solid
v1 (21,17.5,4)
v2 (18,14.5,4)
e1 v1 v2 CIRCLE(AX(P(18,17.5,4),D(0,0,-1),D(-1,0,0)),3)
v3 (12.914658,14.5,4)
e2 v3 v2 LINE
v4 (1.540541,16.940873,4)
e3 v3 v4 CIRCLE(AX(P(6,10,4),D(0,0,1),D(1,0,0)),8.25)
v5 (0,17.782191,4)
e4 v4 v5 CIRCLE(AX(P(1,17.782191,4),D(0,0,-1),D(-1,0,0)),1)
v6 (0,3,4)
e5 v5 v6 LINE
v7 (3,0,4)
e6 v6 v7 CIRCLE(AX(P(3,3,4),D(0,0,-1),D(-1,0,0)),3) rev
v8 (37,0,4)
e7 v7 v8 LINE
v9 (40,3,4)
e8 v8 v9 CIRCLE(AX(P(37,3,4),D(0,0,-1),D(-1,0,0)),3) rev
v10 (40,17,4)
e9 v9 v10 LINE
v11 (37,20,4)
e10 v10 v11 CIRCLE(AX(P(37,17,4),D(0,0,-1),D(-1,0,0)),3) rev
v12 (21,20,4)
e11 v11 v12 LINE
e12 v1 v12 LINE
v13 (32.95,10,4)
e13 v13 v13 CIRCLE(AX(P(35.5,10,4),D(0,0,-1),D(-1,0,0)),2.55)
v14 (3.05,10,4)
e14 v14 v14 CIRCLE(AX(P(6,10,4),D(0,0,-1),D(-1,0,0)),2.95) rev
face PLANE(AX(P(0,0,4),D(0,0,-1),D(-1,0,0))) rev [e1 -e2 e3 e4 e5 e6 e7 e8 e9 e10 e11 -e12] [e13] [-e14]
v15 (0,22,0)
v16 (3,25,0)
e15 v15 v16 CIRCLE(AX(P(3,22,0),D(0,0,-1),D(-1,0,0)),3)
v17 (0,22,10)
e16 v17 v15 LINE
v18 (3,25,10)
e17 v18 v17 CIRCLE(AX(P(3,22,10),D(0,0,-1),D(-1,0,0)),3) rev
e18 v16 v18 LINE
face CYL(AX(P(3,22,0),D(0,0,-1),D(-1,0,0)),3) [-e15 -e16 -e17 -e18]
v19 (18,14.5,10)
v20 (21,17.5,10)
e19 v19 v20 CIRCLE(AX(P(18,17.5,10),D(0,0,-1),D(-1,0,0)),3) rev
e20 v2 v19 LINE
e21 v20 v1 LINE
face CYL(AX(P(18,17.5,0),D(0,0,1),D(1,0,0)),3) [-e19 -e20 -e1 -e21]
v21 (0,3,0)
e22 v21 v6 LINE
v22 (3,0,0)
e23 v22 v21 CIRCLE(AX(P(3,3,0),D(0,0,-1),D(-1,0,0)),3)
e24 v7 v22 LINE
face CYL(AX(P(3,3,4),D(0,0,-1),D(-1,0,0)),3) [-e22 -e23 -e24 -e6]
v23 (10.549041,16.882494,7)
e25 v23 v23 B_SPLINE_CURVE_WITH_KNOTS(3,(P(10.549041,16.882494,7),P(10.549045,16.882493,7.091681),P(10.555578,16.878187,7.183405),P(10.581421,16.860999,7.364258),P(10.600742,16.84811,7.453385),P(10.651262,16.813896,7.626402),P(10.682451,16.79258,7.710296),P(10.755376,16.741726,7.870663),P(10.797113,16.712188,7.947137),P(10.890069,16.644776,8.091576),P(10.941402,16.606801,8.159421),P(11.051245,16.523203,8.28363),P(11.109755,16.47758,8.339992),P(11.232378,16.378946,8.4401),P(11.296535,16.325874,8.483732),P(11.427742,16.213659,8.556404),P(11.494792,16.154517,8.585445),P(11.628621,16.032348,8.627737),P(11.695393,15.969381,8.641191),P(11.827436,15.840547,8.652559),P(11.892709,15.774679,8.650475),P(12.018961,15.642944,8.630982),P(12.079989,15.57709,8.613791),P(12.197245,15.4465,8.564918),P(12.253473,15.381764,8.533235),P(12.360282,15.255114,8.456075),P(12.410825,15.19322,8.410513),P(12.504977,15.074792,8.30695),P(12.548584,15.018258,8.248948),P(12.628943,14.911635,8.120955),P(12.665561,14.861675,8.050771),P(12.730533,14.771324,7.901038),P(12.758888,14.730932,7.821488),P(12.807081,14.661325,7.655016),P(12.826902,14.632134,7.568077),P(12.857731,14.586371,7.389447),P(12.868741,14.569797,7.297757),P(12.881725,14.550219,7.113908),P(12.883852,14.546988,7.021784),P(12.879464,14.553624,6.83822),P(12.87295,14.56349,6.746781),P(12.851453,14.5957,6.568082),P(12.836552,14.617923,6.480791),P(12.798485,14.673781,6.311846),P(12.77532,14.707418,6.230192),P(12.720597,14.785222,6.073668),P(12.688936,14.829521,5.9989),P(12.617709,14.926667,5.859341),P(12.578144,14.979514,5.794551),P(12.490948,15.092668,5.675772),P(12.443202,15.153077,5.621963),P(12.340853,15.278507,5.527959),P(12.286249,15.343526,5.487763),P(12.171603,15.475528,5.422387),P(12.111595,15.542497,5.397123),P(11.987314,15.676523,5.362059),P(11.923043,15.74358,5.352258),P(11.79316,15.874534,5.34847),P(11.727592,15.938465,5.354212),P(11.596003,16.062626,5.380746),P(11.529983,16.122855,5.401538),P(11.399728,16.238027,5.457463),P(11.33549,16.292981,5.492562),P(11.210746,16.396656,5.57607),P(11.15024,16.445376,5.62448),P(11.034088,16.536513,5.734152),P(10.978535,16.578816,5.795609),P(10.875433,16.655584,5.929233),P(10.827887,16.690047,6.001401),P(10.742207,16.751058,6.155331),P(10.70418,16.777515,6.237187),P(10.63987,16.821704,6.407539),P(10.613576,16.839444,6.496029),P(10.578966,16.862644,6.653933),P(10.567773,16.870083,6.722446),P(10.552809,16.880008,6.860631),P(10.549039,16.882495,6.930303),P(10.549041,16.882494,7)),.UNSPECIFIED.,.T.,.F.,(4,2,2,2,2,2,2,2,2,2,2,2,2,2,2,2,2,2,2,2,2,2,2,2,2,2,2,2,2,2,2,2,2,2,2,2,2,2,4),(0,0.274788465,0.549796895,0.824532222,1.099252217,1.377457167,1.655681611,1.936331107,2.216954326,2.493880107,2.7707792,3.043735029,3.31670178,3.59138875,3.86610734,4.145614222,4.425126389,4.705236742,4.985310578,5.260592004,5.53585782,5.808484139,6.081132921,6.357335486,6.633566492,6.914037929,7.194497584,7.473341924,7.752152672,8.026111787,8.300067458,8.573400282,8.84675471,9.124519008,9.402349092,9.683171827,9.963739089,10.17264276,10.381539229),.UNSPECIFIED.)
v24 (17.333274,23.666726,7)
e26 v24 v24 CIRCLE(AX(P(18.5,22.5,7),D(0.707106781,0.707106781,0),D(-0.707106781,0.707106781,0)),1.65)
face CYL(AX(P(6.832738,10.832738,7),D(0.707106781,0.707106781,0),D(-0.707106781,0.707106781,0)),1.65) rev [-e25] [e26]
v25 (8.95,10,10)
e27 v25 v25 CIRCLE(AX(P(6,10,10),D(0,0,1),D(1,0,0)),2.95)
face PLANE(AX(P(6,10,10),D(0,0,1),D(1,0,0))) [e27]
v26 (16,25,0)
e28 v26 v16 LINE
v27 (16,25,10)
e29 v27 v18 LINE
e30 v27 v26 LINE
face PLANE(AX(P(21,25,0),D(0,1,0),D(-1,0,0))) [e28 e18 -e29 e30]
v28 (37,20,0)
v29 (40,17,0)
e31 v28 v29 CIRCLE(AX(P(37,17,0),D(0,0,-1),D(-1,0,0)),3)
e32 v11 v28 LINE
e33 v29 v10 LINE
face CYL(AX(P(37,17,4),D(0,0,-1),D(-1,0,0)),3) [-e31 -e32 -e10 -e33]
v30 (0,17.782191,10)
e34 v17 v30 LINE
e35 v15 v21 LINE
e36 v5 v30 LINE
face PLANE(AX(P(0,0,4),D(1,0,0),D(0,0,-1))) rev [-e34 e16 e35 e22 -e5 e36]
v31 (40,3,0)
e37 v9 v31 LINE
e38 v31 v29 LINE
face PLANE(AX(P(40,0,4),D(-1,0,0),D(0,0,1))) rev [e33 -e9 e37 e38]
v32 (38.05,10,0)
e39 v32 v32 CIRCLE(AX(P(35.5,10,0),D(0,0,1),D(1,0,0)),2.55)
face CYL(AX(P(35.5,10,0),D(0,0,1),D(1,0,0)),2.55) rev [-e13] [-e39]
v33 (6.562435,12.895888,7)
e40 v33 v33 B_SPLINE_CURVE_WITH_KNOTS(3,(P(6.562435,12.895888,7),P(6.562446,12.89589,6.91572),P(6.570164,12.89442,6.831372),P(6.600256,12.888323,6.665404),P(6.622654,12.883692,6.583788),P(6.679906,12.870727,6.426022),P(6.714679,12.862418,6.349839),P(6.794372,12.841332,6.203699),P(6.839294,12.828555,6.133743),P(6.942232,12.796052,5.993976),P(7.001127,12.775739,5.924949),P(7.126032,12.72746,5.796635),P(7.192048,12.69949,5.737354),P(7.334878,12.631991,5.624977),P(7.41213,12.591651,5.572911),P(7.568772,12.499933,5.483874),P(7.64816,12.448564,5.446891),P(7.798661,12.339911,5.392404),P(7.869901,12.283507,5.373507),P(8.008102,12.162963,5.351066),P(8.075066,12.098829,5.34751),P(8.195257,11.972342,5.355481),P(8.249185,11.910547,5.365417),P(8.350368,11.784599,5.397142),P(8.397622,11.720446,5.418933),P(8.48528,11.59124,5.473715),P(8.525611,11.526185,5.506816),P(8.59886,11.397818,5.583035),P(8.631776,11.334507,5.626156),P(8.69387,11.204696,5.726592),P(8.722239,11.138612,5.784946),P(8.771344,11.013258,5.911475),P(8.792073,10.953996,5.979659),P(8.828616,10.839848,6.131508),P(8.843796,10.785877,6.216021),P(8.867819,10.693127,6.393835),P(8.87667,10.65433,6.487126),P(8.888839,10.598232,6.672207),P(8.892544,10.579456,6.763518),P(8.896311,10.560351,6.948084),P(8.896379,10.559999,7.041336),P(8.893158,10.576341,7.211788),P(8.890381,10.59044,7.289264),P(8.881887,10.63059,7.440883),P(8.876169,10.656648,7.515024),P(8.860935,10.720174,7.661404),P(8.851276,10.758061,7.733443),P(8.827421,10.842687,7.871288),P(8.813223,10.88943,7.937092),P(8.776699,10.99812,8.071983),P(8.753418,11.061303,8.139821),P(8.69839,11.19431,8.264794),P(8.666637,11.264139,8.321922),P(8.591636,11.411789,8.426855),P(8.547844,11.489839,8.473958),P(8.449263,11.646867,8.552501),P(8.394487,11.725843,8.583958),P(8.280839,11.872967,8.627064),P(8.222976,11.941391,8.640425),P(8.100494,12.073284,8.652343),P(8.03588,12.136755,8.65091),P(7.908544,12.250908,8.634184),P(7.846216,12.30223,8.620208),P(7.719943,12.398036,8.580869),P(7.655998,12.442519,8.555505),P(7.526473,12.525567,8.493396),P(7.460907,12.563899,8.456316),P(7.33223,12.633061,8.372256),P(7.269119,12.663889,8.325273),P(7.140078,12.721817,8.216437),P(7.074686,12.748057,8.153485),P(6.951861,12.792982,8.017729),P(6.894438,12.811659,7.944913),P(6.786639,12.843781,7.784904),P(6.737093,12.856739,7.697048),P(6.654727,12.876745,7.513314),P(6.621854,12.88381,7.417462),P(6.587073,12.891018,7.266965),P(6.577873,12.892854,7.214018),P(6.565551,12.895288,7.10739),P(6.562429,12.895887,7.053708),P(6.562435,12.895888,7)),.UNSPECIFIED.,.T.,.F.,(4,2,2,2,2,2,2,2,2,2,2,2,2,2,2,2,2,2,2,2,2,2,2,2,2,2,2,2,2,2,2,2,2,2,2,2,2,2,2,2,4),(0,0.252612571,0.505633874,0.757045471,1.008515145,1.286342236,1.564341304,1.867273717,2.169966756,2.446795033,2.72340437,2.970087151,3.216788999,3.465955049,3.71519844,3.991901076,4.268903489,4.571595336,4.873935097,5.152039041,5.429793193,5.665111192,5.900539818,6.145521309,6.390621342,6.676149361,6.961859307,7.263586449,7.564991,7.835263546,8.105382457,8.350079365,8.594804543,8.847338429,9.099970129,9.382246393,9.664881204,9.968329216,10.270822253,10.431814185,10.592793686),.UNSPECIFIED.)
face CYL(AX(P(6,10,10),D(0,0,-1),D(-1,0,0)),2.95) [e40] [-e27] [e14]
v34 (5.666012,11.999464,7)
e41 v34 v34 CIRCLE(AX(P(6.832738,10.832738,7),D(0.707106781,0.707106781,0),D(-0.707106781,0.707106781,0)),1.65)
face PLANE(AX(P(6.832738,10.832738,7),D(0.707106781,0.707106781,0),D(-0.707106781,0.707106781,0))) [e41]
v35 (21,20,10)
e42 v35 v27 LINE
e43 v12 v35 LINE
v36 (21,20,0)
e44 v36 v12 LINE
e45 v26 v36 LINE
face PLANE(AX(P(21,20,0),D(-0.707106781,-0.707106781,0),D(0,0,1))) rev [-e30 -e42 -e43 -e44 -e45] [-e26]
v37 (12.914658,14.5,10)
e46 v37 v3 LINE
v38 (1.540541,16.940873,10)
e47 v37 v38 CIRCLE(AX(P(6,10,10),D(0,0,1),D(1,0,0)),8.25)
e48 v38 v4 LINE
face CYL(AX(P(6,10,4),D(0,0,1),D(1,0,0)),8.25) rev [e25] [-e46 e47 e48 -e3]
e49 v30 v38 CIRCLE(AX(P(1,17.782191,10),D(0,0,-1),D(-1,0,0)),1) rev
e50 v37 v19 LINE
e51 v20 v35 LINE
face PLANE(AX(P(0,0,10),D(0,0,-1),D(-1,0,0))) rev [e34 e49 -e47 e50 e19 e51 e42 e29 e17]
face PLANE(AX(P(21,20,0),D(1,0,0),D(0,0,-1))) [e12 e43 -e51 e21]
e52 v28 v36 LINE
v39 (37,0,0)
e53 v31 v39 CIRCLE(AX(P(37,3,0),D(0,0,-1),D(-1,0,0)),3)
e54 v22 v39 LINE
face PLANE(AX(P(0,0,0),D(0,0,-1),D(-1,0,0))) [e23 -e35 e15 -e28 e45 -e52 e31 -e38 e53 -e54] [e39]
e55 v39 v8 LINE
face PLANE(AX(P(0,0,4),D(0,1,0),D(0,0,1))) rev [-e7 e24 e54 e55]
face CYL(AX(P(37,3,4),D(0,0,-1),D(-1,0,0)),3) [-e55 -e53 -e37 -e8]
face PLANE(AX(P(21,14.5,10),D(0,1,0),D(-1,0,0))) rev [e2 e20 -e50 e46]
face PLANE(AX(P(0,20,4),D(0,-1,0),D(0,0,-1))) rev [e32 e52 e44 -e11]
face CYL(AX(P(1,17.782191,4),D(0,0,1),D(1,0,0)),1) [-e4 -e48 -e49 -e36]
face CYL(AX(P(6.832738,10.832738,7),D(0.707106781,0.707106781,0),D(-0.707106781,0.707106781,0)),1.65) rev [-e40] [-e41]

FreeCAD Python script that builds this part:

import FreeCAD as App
import Part
import Sketcher

V = App.Vector
Q = App.Units.Quantity


def edges_at(feature, points):
    """Names of the edges that pass closest to the given points."""
    edges = feature.Shape.Edges
    near = lambda p: min(range(len(edges)), key=lambda i: edges[i].distToShape(Part.Vertex(*p))[0])
    return sorted({f"Edge{near(p) + 1}" for p in points})


def add_polygon(sketch, points):
    """Adds a closed chain of lines whose ends are joined by coincident constraints."""
    first, n = sketch.GeometryCount, len(points)
    for a, b in zip(points, points[1:] + points[:1]):
        sketch.addGeometry(Part.LineSegment(App.Vector(*a, 0), App.Vector(*b, 0)), False)
    for i in range(n):
        sketch.addConstraint(Sketcher.Constraint("Coincident", first + i, 2, first + (i + 1) % n, 1))

doc = App.newDocument("Part")
body = doc.addObject("PartDesign::Body", "Body")

sketch1 = body.newObject("Sketcher::SketchObject", "Sketch")
sketch1.AttachmentSupport = (doc.getObject("XY_Plane"), [""])
sketch1.MapMode = "FlatFace"
add_polygon(sketch1, [(0, 20), (0, 0), (40, 0), (40, 20)])
sketch1.addConstraint([
    Sketcher.Constraint("Vertical", 0),
    Sketcher.Constraint("Horizontal", 1),
    Sketcher.Constraint("Vertical", 2),
    Sketcher.Constraint("Horizontal", 3),
    Sketcher.Constraint("Coincident", 0, 2, -1, 1),
    Sketcher.Constraint("DistanceX", 1, 1, 1, 2, Q("40 mm")),
    Sketcher.Constraint("DistanceY", 0, 2, 0, 1, Q("20 mm")),
])
pad1 = body.newObject("PartDesign::Pad", "Pad")
pad1.Profile = sketch1
pad1.Length = 4

sketch2 = body.newObject("Sketcher::SketchObject", "Sketch001")
sketch2.AttachmentSupport = (doc.getObject("XY_Plane"), [""])
sketch2.MapMode = "FlatFace"
sketch2.AttachmentOffset = App.Placement(V(0, 0, 4), App.Rotation())
sketch2.addGeometry(Part.Circle(V(6, 10, 0), V(0, 0, 1), 2.95), False)
sketch2.addConstraint([
    Sketcher.Constraint("Diameter", 0, Q("5.9 mm")),
    Sketcher.Constraint("DistanceX", -1, 1, 0, 3, Q("6 mm")),
    Sketcher.Constraint("DistanceY", -1, 1, 0, 3, Q("10 mm")),
])
pad2 = body.newObject("PartDesign::Pad", "Pad001")
pad2.Profile = sketch2
pad2.Length = 6

sketch3 = body.newObject("Sketcher::SketchObject", "Sketch002")
sketch3.AttachmentSupport = (doc.getObject("XY_Plane"), [""])
sketch3.MapMode = "FlatFace"
sketch3.AttachmentOffset = App.Placement(V(0, 0, 4), App.Rotation())
sketch3.addGeometry(Part.Circle(V(35.5, 10, 0), V(0, 0, 1), 2.55), False)
sketch3.addConstraint([
    Sketcher.Constraint("Diameter", 0, Q("5.1 mm")),
    Sketcher.Constraint("DistanceY", -1, 1, 0, 3, Q("10 mm")),
    Sketcher.Constraint("DistanceX", -1, 1, 0, 3, Q("35.5 mm")),
])
pocket1 = body.newObject("PartDesign::Pocket", "Pocket")
pocket1.Profile = sketch3
pocket1.Type = "ThroughAll"
pocket1.Midplane = True

sketch4 = body.newObject("Sketcher::SketchObject", "Sketch003")
sketch4.AttachmentSupport = (doc.getObject("XY_Plane"), [""])
sketch4.MapMode = "FlatFace"
sketch4.AttachmentOffset = App.Placement(V(0, 0, 4), App.Rotation())
add_polygon(sketch4, [(0, 25), (0, 20), (21, 20), (21, 25)])
sketch4.addConstraint([
    Sketcher.Constraint("Vertical", 0),
    Sketcher.Constraint("Horizontal", 1),
    Sketcher.Constraint("Vertical", 2),
    Sketcher.Constraint("Horizontal", 3),
    Sketcher.Constraint("PointOnObject", 0, 2, -2),
    Sketcher.Constraint("DistanceX", 1, 1, 1, 2, Q("21 mm")),
    Sketcher.Constraint("DistanceY", 0, 2, 0, 1, Q("5 mm")),
    Sketcher.Constraint("DistanceY", -1, 1, 0, 2, Q("20 mm")),
])
pad3 = body.newObject("PartDesign::Pad", "Pad002")
pad3.Profile = sketch4
pad3.Length = 4
pad3.Reversed = True

sketch5 = body.newObject("Sketcher::SketchObject", "Sketch004")
sketch5.AttachmentSupport = (doc.getObject("XY_Plane"), [""])
sketch5.MapMode = "FlatFace"
sketch5.AttachmentOffset = App.Placement(V(0, 0, 4), App.Rotation())
add_polygon(sketch5, [(0, 25), (0, 14.5), (21, 14.5), (21, 25)])
sketch5.addConstraint([
    Sketcher.Constraint("Vertical", 0),
    Sketcher.Constraint("Horizontal", 1),
    Sketcher.Constraint("Vertical", 2),
    Sketcher.Constraint("Horizontal", 3),
    Sketcher.Constraint("PointOnObject", 0, 2, -2),
    Sketcher.Constraint("DistanceX", 1, 1, 1, 2, Q("21 mm")),
    Sketcher.Constraint("DistanceY", 0, 2, 0, 1, Q("10.5 mm")),
    Sketcher.Constraint("DistanceY", -1, 1, 2, 2, Q("25 mm")),
])
pad4 = body.newObject("PartDesign::Pad", "Pad003")
pad4.Profile = sketch5
pad4.Length = 6

sketch6 = body.newObject("Sketcher::SketchObject", "Sketch005")
sketch6.AttachmentSupport = (doc.getObject("XY_Plane"), [""])
sketch6.MapMode = "FlatFace"
sketch6.AttachmentOffset = App.Placement(V(0, 0, 4), App.Rotation())
sketch6.addGeometry([
    Part.Circle(V(6, 10, 0), V(0, 0, 1), 8.25),
    Part.Circle(V(6, 10, 0), V(0, 0, 1), 2.95),
], False)
sketch6.addConstraint([
    Sketcher.Constraint("Coincident", 1, 3, 0, 3),
    Sketcher.Constraint("Diameter", 0, Q("16.5 mm")),
    Sketcher.Constraint("Diameter", 1, Q("5.9 mm")),
    Sketcher.Constraint("DistanceX", -1, 1, 0, 3, Q("6 mm")),
    Sketcher.Constraint("DistanceY", -1, 1, 0, 3, Q("10 mm")),
])
pocket2 = body.newObject("PartDesign::Pocket", "Pocket001")
pocket2.Profile = sketch6
pocket2.Length = 6
pocket2.Reversed = True
doc.recompute()

chamfer = body.newObject("PartDesign::Chamfer", "Chamfer")
chamfer.Base = (pocket2, edges_at(pocket2, [(21, 25, 5)]))
chamfer.Size = 5

sketch7 = body.newObject("Sketcher::SketchObject", "Sketch006")
sketch7.Placement = App.Placement(V(20.5, 20.5, 0), App.Rotation(V(0, 0, -1), V(-0.707106781, 0.707106781, 0), V(0.707106781, 0.707106781, 0), "ZXY"))
sketch7.addGeometry(Part.Circle(V(-7, 2.828427, 0), V(0, 0, 1), 1.65), False)
sketch7.addConstraint([
    Sketcher.Constraint("Diameter", 0, Q("3.3 mm")),
    Sketcher.Constraint("DistanceX", 0, 3, -1, 1, Q("7 mm")),
    Sketcher.Constraint("DistanceY", -1, 1, 0, 3, Q("2.828427 mm")),
])
pocket3 = body.newObject("PartDesign::Pocket", "Pocket002")
pocket3.Profile = sketch7
pocket3.Length = 16.5
doc.recompute()

fillet = body.newObject("PartDesign::Fillet", "Fillet")
fillet.Base = (pocket3, edges_at(pocket3, [
    (0, 25, 5),
    (21, 14.5, 7),
    (40, 20, 2),
    (40, 0, 2),
    (0, 0, 2),
]))
fillet.Radius = 3
doc.recompute()

fillet2 = body.newObject("PartDesign::Fillet", "Fillet001")
fillet2.Base = (fillet, edges_at(fillet, [(0, 15.662, 7)]))
fillet2.Radius = 1

doc.recompute()
